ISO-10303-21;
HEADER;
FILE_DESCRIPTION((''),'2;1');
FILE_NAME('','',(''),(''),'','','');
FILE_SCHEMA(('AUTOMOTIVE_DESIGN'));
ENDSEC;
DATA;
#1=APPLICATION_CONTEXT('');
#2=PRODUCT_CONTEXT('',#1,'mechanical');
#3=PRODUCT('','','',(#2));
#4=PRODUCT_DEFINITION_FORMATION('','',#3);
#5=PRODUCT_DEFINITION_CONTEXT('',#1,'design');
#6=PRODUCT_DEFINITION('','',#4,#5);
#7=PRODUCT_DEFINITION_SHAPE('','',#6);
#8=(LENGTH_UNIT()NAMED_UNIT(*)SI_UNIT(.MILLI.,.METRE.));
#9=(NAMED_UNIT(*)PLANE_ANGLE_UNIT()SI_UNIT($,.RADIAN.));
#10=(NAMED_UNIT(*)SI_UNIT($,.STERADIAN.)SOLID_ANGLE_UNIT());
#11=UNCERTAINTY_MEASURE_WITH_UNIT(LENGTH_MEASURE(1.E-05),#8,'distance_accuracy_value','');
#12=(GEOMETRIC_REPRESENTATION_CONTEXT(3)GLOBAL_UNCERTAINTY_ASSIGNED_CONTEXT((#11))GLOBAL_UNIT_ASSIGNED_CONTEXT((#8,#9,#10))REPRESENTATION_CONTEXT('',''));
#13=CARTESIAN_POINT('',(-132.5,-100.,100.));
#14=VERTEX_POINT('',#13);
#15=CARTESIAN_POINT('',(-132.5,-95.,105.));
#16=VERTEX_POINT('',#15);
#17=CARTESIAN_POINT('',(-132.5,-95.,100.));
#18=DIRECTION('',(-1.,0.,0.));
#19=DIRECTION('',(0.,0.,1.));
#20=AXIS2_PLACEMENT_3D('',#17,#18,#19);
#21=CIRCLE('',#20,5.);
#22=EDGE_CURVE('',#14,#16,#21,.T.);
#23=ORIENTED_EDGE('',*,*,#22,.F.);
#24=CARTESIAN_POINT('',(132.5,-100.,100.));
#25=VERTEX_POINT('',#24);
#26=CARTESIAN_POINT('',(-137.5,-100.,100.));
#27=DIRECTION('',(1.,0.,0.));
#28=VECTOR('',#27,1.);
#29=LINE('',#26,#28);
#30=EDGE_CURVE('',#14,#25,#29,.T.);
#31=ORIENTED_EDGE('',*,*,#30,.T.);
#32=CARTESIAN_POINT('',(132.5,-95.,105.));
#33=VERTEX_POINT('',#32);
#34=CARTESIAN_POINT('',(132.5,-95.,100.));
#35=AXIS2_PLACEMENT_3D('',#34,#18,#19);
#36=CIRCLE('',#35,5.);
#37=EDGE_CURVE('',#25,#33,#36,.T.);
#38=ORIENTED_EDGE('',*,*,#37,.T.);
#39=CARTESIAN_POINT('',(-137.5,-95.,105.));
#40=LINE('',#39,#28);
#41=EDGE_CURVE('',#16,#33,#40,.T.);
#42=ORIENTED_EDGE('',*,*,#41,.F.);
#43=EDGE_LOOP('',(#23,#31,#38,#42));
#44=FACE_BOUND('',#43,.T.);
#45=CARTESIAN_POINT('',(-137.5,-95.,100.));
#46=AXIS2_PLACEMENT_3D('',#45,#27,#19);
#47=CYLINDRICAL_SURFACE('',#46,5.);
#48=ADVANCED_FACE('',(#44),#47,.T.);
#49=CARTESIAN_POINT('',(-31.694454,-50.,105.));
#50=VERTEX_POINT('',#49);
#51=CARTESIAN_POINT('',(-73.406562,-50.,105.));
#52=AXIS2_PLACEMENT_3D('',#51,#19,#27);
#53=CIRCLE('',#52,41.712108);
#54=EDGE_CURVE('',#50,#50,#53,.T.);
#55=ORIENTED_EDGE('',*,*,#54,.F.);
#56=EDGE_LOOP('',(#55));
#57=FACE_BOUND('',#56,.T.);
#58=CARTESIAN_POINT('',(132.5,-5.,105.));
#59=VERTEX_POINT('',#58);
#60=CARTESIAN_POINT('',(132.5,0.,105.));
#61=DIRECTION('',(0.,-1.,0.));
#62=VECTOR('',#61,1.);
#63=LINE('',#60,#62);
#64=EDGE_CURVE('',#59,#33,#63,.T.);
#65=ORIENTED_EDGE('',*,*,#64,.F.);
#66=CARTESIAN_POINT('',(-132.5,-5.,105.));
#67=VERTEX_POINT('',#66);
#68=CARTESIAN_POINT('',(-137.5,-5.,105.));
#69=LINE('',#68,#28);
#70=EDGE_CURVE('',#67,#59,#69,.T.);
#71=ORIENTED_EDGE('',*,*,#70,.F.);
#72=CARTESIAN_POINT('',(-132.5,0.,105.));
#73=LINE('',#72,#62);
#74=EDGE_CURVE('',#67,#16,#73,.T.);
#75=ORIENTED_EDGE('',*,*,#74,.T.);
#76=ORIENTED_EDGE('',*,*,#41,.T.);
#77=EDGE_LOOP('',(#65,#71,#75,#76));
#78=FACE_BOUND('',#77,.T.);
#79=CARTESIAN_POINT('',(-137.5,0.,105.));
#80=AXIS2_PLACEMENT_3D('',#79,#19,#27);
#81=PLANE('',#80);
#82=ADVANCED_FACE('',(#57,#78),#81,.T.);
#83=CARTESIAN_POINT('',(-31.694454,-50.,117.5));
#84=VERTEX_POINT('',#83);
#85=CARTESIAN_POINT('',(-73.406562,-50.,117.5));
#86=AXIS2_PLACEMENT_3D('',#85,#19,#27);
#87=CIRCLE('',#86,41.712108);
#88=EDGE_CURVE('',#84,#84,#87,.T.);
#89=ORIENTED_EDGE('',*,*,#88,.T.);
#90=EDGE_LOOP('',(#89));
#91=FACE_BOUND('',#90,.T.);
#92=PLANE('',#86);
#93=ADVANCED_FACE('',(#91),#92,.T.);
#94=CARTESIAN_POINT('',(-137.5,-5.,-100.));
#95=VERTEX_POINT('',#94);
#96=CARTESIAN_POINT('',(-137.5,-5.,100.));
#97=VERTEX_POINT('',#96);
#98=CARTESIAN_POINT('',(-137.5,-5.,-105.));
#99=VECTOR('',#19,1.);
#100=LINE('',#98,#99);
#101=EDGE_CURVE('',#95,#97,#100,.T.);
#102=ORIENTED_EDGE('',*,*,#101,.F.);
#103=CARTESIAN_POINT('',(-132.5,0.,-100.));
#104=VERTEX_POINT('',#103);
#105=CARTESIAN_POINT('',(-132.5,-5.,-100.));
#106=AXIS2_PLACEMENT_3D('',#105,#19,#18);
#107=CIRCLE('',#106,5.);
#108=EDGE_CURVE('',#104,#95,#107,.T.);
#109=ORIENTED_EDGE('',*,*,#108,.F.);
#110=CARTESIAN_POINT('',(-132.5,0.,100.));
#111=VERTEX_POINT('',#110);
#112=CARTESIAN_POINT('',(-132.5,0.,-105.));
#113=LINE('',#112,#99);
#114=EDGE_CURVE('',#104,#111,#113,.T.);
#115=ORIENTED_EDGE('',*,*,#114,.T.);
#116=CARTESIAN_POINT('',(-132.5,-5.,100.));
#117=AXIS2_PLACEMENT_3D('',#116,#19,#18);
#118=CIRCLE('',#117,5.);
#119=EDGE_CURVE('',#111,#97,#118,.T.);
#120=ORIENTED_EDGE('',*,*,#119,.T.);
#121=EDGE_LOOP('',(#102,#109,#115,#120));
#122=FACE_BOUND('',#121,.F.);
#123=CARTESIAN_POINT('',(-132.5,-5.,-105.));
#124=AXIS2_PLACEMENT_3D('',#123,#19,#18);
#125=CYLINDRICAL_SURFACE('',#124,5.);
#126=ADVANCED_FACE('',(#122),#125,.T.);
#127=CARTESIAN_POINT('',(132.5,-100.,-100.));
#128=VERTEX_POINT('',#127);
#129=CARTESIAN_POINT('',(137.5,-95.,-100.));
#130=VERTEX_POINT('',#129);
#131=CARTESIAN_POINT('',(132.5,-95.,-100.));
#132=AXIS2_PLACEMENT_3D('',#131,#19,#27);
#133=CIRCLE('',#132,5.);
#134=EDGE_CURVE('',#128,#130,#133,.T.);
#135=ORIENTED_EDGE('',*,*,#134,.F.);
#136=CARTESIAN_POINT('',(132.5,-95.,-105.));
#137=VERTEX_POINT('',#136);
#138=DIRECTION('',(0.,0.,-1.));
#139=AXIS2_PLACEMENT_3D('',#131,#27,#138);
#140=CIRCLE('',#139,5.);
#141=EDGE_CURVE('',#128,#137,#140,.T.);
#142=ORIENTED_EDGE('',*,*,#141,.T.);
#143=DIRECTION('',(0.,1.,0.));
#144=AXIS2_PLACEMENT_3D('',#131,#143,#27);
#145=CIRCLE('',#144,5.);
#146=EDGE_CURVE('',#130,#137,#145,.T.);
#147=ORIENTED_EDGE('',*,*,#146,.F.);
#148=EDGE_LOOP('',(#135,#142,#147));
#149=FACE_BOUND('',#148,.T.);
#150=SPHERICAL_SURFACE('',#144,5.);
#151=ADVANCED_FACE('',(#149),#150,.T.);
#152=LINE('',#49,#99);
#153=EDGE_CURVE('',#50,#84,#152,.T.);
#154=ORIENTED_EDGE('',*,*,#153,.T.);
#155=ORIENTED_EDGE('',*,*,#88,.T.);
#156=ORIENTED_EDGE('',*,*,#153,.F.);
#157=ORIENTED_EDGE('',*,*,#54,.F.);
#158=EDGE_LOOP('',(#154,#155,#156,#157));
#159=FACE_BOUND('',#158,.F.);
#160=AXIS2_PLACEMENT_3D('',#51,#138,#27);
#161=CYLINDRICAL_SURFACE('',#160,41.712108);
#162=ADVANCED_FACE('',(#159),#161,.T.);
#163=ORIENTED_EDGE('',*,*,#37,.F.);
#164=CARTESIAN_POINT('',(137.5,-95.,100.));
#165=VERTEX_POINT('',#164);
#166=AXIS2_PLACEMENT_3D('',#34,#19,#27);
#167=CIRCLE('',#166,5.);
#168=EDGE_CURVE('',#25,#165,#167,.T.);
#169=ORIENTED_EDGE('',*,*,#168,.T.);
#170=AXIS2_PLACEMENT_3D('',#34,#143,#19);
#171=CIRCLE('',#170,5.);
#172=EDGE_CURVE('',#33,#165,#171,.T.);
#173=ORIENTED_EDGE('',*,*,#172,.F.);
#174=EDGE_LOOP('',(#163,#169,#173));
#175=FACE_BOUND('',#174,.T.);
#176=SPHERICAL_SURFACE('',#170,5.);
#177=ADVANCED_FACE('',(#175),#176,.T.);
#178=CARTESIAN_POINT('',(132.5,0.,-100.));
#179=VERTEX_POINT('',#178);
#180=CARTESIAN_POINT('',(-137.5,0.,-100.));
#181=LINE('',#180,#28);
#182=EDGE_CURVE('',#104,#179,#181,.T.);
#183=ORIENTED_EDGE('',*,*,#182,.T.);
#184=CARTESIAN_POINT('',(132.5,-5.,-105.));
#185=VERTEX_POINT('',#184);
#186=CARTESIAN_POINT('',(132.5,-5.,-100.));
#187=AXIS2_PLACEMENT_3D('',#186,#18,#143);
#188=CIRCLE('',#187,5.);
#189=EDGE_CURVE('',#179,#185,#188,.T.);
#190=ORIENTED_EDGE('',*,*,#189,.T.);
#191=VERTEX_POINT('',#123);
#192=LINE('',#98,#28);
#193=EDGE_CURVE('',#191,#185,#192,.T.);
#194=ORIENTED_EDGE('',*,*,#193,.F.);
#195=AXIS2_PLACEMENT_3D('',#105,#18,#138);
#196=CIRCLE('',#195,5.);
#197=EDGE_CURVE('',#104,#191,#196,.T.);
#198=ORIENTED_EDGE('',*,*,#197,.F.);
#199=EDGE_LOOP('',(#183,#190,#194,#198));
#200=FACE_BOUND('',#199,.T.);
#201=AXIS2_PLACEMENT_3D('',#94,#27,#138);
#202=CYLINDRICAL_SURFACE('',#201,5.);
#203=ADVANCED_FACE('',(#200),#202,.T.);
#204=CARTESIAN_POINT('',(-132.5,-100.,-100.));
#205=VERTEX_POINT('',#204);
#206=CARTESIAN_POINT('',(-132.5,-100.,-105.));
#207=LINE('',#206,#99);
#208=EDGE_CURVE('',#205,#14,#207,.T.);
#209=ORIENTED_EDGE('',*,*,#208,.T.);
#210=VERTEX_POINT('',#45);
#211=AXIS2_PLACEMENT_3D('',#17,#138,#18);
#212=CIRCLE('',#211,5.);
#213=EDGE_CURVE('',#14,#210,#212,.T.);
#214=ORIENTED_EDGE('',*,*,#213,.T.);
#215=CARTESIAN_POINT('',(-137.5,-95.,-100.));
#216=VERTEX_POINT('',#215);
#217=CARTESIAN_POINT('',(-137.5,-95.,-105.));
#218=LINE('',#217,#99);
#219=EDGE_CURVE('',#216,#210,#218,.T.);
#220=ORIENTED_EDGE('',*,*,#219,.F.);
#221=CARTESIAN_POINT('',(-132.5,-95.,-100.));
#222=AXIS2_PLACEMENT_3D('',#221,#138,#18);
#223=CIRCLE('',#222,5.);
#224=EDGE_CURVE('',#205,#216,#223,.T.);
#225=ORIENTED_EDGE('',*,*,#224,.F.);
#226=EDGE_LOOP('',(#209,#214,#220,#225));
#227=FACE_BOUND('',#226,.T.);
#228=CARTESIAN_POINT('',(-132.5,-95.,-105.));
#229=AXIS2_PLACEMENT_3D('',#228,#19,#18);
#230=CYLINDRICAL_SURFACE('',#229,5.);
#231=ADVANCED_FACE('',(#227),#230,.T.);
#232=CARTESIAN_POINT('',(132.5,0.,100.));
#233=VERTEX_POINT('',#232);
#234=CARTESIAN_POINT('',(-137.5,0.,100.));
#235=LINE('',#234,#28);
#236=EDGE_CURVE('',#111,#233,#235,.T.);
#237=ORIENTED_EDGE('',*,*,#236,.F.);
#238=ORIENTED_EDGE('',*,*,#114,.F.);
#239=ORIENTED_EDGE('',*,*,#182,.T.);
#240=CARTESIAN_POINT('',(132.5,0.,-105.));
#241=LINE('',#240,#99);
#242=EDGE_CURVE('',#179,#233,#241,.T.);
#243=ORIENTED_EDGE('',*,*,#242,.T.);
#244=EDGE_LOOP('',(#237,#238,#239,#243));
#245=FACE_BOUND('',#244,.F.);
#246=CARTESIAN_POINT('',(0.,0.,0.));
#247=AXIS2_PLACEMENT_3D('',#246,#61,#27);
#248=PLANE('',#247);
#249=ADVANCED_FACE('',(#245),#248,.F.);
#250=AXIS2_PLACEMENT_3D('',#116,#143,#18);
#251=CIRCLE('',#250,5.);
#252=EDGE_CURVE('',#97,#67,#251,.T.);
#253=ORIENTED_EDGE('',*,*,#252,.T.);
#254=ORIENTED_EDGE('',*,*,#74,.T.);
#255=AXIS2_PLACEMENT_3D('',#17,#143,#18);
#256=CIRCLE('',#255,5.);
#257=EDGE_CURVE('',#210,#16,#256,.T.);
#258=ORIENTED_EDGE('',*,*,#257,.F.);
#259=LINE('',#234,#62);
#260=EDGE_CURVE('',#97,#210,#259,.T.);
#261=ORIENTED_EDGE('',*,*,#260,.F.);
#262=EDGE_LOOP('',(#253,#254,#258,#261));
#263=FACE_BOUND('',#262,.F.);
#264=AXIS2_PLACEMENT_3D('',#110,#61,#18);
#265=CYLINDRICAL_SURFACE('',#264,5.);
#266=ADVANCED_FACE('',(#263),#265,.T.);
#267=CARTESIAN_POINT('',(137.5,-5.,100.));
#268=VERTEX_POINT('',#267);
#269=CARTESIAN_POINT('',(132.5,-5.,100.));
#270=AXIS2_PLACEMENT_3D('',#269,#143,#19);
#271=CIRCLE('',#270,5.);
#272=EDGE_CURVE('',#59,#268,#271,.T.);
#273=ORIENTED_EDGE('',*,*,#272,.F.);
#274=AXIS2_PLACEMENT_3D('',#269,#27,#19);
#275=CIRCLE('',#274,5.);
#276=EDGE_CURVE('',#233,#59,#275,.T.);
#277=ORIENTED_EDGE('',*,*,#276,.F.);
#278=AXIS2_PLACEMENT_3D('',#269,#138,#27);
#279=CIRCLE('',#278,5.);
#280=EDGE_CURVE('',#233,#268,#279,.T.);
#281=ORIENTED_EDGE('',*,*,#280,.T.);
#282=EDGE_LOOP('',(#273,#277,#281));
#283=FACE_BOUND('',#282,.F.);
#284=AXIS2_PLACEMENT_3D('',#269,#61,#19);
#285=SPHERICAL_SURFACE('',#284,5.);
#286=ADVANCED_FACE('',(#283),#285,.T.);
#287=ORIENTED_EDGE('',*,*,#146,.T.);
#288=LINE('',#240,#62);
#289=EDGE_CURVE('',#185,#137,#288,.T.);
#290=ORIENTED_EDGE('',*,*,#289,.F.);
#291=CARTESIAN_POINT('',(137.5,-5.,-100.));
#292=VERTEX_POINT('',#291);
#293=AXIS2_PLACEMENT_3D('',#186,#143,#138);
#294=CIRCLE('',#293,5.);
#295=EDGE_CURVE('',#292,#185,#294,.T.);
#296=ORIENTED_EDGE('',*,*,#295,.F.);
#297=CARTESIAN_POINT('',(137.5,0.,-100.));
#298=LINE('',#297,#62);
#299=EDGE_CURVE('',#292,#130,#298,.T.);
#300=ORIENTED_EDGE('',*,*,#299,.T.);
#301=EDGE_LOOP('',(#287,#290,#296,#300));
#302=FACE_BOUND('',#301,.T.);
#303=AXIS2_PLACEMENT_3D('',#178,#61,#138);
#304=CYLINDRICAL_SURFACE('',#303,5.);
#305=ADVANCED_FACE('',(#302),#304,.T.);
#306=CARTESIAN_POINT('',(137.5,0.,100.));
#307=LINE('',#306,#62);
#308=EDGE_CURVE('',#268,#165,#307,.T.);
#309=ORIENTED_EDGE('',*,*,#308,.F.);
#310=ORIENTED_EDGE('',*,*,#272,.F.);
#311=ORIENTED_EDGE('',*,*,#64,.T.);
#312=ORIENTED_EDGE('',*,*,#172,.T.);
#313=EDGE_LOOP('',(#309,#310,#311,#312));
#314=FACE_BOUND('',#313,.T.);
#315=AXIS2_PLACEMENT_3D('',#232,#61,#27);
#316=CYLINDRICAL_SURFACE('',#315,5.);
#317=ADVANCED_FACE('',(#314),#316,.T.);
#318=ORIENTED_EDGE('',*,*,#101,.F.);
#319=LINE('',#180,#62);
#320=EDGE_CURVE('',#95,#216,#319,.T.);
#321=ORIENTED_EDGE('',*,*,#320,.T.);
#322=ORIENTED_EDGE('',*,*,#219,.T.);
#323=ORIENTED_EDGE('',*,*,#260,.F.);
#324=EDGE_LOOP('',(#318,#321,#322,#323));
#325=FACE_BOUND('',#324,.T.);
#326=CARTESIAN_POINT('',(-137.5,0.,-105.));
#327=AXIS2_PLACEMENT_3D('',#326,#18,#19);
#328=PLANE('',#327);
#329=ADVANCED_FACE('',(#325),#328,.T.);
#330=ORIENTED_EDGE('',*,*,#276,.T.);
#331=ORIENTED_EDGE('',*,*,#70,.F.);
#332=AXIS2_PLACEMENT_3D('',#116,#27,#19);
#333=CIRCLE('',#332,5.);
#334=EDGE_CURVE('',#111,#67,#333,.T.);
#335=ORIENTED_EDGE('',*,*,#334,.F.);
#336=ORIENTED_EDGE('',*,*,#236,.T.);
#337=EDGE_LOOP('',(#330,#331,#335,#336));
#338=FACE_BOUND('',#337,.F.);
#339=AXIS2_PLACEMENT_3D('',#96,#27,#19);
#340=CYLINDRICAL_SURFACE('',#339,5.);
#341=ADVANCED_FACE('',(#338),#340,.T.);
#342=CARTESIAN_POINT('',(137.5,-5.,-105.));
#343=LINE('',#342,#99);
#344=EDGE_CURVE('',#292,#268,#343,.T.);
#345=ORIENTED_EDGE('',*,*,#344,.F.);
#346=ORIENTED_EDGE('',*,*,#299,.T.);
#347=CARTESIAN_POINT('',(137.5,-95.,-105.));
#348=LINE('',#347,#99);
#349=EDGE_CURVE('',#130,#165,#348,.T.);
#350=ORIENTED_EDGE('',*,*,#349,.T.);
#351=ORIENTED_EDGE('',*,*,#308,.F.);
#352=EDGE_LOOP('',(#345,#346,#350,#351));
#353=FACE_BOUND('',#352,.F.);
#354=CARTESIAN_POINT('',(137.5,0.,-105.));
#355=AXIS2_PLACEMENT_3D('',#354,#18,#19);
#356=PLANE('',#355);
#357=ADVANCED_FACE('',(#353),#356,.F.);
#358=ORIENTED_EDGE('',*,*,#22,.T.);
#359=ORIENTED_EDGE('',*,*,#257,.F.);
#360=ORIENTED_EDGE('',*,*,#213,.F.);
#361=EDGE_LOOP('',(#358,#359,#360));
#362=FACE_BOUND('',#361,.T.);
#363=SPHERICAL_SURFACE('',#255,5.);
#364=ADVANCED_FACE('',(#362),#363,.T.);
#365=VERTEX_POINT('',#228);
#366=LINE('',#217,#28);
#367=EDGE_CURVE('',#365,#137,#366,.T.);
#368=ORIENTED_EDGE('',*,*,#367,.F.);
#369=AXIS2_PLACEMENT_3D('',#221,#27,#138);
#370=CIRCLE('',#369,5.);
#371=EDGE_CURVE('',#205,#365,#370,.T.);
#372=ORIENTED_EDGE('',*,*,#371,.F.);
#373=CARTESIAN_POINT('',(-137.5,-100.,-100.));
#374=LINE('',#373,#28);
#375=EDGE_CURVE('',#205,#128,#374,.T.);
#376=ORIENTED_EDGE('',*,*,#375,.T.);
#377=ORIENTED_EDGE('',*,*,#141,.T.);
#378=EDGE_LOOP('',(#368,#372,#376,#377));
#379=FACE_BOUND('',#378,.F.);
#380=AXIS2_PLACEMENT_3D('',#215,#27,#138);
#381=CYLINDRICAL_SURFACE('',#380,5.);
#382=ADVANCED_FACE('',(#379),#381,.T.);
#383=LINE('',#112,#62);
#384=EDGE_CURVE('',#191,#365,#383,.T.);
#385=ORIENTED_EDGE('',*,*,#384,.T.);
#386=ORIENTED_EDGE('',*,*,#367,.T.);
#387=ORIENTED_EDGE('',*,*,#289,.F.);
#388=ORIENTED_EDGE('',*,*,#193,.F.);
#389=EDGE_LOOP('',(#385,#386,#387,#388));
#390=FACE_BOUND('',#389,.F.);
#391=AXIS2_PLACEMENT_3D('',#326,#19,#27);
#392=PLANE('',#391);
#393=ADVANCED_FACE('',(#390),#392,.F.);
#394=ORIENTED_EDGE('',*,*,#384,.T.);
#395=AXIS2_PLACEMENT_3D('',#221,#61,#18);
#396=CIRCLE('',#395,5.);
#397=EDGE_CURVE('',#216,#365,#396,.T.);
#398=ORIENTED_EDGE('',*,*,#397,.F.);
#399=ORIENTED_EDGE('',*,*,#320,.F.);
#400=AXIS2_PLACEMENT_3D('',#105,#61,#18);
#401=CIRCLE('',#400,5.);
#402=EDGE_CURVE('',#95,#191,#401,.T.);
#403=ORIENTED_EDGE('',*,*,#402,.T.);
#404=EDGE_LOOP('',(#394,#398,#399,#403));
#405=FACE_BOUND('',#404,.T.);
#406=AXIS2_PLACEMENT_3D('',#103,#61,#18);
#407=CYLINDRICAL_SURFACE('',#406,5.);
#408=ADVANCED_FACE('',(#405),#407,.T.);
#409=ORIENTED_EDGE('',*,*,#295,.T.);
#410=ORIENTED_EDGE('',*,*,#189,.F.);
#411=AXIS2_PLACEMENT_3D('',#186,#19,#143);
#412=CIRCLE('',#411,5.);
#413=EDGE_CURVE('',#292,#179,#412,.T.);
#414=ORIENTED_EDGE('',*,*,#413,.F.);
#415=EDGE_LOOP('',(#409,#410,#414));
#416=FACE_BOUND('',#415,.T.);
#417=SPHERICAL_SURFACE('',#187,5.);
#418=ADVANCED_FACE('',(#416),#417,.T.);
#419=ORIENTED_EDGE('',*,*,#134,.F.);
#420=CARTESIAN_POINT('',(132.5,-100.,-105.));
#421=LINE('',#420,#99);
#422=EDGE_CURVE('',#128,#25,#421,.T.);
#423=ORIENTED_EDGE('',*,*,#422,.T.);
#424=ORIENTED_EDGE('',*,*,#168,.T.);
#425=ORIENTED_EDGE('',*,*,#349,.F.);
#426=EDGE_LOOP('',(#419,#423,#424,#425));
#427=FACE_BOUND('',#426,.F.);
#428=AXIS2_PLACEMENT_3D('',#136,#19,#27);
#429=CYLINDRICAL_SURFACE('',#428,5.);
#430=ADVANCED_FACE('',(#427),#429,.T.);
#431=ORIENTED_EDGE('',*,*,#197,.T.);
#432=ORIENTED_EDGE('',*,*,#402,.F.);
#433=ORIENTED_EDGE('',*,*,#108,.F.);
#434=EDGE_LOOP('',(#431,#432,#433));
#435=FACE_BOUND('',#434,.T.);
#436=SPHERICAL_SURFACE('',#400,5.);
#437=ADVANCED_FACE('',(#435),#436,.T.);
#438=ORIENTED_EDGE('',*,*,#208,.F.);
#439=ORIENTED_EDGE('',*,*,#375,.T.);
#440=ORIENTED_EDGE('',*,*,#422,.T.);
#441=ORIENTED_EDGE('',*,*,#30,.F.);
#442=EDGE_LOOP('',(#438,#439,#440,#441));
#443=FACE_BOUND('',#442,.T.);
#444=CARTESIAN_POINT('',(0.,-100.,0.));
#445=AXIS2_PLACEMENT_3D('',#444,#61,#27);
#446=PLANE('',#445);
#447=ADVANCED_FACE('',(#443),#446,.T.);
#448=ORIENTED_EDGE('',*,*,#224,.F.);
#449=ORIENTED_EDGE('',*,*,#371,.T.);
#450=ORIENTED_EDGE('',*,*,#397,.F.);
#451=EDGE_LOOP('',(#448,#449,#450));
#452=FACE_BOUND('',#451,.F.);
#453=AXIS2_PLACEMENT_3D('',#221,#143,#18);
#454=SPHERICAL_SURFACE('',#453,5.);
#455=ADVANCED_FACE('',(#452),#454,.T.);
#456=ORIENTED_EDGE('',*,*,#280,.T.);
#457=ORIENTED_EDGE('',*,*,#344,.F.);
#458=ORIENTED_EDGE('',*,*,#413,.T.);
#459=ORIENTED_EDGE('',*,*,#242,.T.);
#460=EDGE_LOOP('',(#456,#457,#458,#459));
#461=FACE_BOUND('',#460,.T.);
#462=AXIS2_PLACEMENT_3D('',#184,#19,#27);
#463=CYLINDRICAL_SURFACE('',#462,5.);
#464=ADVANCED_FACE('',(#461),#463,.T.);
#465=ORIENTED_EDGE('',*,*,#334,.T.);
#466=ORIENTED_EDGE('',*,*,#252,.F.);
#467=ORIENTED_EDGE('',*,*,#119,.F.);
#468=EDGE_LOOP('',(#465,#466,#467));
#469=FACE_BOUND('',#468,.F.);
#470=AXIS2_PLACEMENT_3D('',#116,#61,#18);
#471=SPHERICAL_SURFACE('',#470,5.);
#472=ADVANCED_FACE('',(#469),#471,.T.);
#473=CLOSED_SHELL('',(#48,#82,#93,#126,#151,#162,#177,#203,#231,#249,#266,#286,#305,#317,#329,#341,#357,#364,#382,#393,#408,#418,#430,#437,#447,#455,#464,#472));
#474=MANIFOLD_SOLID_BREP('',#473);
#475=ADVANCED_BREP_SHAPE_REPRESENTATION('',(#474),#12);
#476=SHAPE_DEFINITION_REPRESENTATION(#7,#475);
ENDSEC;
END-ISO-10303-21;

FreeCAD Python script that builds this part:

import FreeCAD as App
import Part
import Sketcher

V = App.Vector
Q = App.Units.Quantity


def add_polygon(sketch, points):
    """Adds a closed chain of lines whose ends are joined by coincident constraints."""
    first, n = sketch.GeometryCount, len(points)
    for a, b in zip(points, points[1:] + points[:1]):
        sketch.addGeometry(Part.LineSegment(App.Vector(*a, 0), App.Vector(*b, 0)), False)
    for i in range(n):
        sketch.addConstraint(Sketcher.Constraint("Coincident", first + i, 2, first + (i + 1) % n, 1))

doc = App.newDocument("Part")
body = doc.addObject("PartDesign::Body", "Body")

sketch1 = doc.addObject("Sketcher::SketchObject", "Sketch")
body.addObject(sketch1)
sketch1.AttachmentSupport = (doc.XZ_Plane, [""])
sketch1.MapMode = "FlatFace"
add_polygon(sketch1, [(-138, 105), (-138, -105), (138, -105), (138, 105)])
sketch1.addConstraint([
    Sketcher.Constraint("Vertical", 0),
    Sketcher.Constraint("Horizontal", 1),
    Sketcher.Constraint("Vertical", 2),
    Sketcher.Constraint("Horizontal", 3),
    Sketcher.Constraint("Symmetric", 0, 2, 2, 2, -1, 1),
    Sketcher.Constraint("DistanceX", 1, 1, 1, 2, Q("275 mm")),
    Sketcher.Constraint("DistanceY", 0, 2, 0, 1, Q("210 mm")),
])
pad1 = doc.addObject("PartDesign::Pad", "Pad")
body.addObject(pad1)
pad1.Profile = sketch1
pad1.Length = 100
doc.recompute()

fillet = doc.addObject("PartDesign::Fillet", "Fillet")
body.addObject(fillet)
fillet.Base = (pad1, ["Edge1"])
fillet.UseAllEdges = True
fillet.Radius = 5

sketch2 = doc.addObject("Sketcher::SketchObject", "Sketch001")
body.addObject(sketch2)
sketch2.AttachmentSupport = (doc.XY_Plane, [""])
sketch2.MapMode = "FlatFace"
sketch2.AttachmentOffset = App.Placement(V(0, 0, 105), App.Rotation())
sketch2.addGeometry(Part.Circle(V(-73, -50, 0), V(0, 0, 1), 42), False)
sketch2.addConstraint([
    Sketcher.Constraint("DistanceY", 0, 3, -1, 1, Q("50 mm")),
    Sketcher.Constraint("Diameter", 0, Q("83.424216 mm")),
    Sketcher.Constraint("DistanceX", 0, 3, -1, 1, Q("73.406562 mm")),
])
pad2 = doc.addObject("PartDesign::Pad", "Pad001")
body.addObject(pad2)
pad2.Profile = sketch2
pad2.Length = 12.5

doc.recompute()
